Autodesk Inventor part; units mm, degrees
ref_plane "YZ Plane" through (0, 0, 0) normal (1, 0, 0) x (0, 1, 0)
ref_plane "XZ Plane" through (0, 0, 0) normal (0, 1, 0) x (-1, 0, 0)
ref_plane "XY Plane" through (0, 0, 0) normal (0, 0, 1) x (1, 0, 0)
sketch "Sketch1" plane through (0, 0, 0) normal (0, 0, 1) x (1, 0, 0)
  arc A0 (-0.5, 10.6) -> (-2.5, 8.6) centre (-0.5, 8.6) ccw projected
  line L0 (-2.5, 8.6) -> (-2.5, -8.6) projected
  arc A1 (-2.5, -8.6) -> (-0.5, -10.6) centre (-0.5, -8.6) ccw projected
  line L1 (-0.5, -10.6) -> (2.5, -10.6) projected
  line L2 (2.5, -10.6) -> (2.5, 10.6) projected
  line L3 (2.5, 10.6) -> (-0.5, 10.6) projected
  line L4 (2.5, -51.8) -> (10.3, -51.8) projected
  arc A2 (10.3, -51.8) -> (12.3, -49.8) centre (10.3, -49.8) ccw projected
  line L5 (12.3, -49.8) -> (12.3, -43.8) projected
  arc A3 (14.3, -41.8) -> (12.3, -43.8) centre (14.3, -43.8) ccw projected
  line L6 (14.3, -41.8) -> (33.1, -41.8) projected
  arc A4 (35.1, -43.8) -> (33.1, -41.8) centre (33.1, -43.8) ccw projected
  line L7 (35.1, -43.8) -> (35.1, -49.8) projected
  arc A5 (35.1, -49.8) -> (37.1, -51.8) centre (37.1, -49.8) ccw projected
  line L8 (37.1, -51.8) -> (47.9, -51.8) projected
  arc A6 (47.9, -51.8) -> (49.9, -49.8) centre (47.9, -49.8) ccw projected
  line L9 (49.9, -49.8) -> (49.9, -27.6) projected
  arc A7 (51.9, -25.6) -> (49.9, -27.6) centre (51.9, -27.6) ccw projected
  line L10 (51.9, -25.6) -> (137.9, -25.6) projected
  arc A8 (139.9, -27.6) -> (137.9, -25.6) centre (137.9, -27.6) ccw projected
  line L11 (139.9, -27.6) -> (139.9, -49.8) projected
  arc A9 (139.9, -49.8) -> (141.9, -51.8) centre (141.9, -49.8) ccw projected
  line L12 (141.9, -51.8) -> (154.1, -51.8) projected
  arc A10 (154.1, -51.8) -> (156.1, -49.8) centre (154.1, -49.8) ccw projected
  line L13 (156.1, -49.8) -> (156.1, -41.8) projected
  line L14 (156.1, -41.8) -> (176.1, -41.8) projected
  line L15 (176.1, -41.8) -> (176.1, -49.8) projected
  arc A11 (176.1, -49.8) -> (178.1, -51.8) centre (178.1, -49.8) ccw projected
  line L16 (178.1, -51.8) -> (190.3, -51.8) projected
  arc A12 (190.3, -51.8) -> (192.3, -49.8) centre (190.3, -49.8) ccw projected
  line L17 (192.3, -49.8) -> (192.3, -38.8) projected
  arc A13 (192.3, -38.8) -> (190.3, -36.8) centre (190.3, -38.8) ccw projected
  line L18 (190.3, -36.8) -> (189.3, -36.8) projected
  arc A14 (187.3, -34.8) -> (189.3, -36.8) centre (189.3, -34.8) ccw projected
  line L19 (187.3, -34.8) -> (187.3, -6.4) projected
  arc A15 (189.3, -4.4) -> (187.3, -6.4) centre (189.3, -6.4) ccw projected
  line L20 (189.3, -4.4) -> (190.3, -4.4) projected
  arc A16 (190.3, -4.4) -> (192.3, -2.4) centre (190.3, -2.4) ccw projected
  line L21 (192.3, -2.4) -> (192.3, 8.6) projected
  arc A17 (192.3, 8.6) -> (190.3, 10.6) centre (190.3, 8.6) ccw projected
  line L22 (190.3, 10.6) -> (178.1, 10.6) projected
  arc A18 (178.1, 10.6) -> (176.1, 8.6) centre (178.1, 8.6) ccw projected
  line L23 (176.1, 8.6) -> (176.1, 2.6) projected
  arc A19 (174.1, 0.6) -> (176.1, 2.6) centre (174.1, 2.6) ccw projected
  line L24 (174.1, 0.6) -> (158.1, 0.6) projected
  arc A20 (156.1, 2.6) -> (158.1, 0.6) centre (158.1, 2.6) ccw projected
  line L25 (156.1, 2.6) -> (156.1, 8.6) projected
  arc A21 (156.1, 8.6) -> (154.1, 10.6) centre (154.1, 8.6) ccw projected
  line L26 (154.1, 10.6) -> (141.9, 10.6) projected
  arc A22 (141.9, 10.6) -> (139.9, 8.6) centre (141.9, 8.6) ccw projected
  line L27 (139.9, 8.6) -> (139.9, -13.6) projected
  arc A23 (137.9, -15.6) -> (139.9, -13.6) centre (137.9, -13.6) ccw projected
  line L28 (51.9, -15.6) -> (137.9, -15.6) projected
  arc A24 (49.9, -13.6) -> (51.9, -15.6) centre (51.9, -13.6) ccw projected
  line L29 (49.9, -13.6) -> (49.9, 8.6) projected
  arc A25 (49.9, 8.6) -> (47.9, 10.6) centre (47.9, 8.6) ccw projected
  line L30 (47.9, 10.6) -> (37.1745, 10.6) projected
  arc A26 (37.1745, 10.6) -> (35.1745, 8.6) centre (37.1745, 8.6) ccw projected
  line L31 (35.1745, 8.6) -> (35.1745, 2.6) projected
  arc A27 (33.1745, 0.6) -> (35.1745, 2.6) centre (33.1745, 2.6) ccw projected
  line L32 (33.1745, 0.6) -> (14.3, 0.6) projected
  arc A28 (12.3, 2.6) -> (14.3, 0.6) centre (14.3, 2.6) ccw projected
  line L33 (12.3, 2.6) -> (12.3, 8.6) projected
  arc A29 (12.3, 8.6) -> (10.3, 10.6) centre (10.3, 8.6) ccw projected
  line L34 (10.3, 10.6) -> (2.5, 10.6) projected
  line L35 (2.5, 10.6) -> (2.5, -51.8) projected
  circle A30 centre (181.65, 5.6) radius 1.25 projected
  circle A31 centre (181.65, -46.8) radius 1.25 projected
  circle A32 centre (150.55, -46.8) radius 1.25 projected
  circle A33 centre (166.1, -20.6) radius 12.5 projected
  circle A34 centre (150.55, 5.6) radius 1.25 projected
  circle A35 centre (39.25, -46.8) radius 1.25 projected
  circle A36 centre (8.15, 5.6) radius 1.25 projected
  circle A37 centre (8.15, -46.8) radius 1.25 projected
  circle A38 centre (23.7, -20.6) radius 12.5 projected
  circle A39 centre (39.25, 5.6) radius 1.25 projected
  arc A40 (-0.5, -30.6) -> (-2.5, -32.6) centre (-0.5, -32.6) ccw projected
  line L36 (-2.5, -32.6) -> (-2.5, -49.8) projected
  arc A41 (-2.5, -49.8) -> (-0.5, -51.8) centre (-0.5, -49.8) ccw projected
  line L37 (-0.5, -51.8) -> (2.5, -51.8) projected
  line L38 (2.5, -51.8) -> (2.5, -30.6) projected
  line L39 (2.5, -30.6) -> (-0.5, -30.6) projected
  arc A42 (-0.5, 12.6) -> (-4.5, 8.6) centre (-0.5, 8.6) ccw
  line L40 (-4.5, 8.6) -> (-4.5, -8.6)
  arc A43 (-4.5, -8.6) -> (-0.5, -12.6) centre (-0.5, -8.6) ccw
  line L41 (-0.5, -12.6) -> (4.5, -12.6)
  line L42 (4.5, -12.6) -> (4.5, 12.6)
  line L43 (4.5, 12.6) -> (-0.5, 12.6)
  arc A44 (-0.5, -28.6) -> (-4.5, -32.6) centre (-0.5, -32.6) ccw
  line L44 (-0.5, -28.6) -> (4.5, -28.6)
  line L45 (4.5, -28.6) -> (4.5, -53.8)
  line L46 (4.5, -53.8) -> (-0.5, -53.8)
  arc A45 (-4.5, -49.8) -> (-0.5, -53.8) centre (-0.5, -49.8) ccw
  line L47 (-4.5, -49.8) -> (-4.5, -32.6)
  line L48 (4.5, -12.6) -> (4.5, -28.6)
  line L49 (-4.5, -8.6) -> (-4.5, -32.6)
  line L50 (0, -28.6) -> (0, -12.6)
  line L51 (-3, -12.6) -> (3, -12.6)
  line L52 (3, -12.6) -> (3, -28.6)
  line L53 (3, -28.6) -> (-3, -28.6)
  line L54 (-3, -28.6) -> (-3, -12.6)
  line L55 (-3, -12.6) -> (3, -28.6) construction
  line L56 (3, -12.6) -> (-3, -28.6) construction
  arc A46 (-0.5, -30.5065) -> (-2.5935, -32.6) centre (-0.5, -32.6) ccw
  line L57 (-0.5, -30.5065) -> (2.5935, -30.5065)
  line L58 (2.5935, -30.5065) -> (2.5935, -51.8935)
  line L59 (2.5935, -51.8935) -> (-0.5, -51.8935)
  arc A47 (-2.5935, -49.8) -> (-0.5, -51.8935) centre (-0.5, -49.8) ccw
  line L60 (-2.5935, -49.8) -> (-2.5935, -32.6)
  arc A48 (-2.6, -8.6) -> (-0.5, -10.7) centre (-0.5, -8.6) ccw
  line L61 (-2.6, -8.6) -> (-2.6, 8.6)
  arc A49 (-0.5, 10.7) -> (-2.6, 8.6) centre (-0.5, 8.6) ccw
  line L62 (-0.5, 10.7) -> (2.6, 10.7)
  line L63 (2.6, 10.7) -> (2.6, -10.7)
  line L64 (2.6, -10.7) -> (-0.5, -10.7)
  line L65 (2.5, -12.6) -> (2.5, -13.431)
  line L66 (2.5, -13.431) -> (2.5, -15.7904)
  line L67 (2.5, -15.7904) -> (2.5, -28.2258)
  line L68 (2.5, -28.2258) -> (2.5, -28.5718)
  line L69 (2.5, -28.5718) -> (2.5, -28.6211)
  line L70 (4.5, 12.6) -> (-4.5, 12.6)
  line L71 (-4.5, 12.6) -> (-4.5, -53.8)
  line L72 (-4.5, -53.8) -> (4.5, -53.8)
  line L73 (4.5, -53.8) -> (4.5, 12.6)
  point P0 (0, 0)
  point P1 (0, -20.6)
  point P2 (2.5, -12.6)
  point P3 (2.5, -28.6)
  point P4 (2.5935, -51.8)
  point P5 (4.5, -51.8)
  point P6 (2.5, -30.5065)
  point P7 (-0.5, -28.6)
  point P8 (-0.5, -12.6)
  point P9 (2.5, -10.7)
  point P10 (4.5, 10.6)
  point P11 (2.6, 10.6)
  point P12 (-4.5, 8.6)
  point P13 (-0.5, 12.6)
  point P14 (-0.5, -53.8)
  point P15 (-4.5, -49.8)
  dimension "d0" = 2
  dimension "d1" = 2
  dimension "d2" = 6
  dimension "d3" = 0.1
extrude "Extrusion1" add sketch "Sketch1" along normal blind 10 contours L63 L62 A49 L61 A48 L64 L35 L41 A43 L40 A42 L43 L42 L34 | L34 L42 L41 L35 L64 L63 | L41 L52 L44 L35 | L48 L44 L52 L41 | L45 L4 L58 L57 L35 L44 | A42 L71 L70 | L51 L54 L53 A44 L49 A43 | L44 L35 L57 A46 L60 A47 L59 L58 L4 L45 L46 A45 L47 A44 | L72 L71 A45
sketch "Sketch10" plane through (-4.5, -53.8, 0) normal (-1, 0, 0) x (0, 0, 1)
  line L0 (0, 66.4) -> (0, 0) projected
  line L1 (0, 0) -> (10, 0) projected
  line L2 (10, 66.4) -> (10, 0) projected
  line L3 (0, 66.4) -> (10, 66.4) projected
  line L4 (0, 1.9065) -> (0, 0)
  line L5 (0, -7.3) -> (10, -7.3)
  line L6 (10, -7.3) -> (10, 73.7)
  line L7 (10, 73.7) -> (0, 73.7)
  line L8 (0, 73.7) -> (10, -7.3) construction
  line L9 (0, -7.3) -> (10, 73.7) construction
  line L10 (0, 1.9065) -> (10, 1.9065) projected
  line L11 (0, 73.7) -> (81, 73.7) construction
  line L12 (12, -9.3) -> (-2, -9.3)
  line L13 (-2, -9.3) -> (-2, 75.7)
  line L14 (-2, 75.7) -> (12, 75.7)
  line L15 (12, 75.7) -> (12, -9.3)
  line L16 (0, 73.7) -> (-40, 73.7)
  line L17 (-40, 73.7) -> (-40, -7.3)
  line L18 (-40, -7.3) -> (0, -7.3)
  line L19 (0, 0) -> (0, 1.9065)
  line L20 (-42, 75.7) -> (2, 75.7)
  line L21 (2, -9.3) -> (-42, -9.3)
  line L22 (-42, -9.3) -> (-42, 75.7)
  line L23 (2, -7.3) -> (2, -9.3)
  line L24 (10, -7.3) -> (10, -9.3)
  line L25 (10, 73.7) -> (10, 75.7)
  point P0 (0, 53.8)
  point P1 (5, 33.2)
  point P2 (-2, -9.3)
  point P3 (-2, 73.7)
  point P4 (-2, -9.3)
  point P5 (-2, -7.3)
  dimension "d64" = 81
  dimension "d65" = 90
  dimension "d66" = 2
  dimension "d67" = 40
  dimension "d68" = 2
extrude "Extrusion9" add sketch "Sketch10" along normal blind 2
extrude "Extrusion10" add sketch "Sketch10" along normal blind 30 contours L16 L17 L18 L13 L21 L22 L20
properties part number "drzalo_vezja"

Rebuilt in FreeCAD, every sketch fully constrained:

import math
import FreeCAD as App
import Part
import Sketcher

V = App.Vector
Q = App.Units.Quantity


def add_polygon(sketch, points):
    """Adds a closed chain of lines whose ends are joined by coincident constraints."""
    first, n = sketch.GeometryCount, len(points)
    for a, b in zip(points, points[1:] + points[:1]):
        sketch.addGeometry(Part.LineSegment(App.Vector(*a, 0), App.Vector(*b, 0)), False)
    for i in range(n):
        sketch.addConstraint(Sketcher.Constraint("Coincident", first + i, 2, first + (i + 1) % n, 1))

doc = App.newDocument("Part")
body = doc.addObject("PartDesign::Body", "Body")

# Sketch on XY plane
sketch1 = body.newObject("Sketcher::SketchObject", "Sketch")
sketch1.AttachmentSupport = (doc.getObject("XY_Plane"), [""])
sketch1.MapMode = "FlatFace"
add_polygon(sketch1, [(-4.5, -53.8), (4.5, -53.8), (4.5, 12.6), (-4.5, 12.6)])  # lines 0-3
sketch1.addGeometry(Part.LineSegment(V(2.6, 10.7, 0), V(2.6, -10.7, 0)), False)  # 4
sketch1.addGeometry(Part.LineSegment(V(2.6, -10.7, 0), V(-0.5, -10.7, 0)), False)  # 5
sketch1.addGeometry(Part.ArcOfCircle(Part.Circle(V(-0.5, -8.6, 0), V(0, 0, 1), 2.1), math.radians(180), math.radians(270)), False)  # 6
sketch1.addGeometry(Part.LineSegment(V(-2.6, -8.6, 0), V(-2.6, 8.6, 0)), False)  # 7
sketch1.addGeometry(Part.ArcOfCircle(Part.Circle(V(-0.5, 8.6, 0), V(0, 0, 1), 2.1), math.radians(90), math.radians(180)), False)  # 8
sketch1.addGeometry(Part.LineSegment(V(-0.5, 10.7, 0), V(2.6, 10.7, 0)), False)  # 9
add_polygon(sketch1, [(2.5, -12.6), (2.5, -28.6), (-3, -28.6), (-3, -12.6)])  # lines 10-13
sketch1.addGeometry(Part.LineSegment(V(-0.5, -30.5065, 0), V(2.5935, -30.5065, 0)), False)  # 14
sketch1.addGeometry(Part.LineSegment(V(2.5935, -30.5065, 0), V(2.5935, -51.8935, 0)), False)  # 15
sketch1.addGeometry(Part.LineSegment(V(2.5935, -51.8935, 0), V(-0.5, -51.8935, 0)), False)  # 16
sketch1.addGeometry(Part.ArcOfCircle(Part.Circle(V(-0.5, -49.8, 0), V(0, 0, 1), 2.0935), math.radians(180), math.radians(270)), False)  # 17
sketch1.addGeometry(Part.LineSegment(V(-2.5935, -49.8, 0), V(-2.5935, -32.6, 0)), False)  # 18
sketch1.addGeometry(Part.ArcOfCircle(Part.Circle(V(-0.5, -32.6, 0), V(0, 0, 1), 2.0935), math.radians(90), math.radians(180)), False)  # 19
sketch1.addConstraint(Sketcher.Constraint("Coincident", 4, 2, 5, 1))
sketch1.addConstraint(Sketcher.Constraint("Tangent", 5, 2, 6, 2))
sketch1.addConstraint(Sketcher.Constraint("Tangent", 6, 1, 7, 1))
sketch1.addConstraint(Sketcher.Constraint("Tangent", 7, 2, 8, 2))
sketch1.addConstraint(Sketcher.Constraint("Tangent", 8, 1, 9, 1))
sketch1.addConstraint(Sketcher.Constraint("Coincident", 9, 2, 4, 1))
sketch1.addConstraint(Sketcher.Constraint("Coincident", 14, 2, 15, 1))
sketch1.addConstraint(Sketcher.Constraint("Coincident", 15, 2, 16, 1))
sketch1.addConstraint(Sketcher.Constraint("Tangent", 16, 2, 17, 2))
sketch1.addConstraint(Sketcher.Constraint("Tangent", 17, 1, 18, 1))
sketch1.addConstraint(Sketcher.Constraint("Tangent", 18, 2, 19, 2))
sketch1.addConstraint(Sketcher.Constraint("Tangent", 19, 1, 14, 1))
sketch1.addConstraint(Sketcher.Constraint("Horizontal", 0))
sketch1.addConstraint(Sketcher.Constraint("Vertical", 1))
sketch1.addConstraint(Sketcher.Constraint("Horizontal", 2))
sketch1.addConstraint(Sketcher.Constraint("Vertical", 3))
sketch1.addConstraint(Sketcher.Constraint("Vertical", 4))
sketch1.addConstraint(Sketcher.Constraint("Horizontal", 5))
sketch1.addConstraint(Sketcher.Constraint("Vertical", 7))
sketch1.addConstraint(Sketcher.Constraint("Horizontal", 9))
sketch1.addConstraint(Sketcher.Constraint("Vertical", 10))
sketch1.addConstraint(Sketcher.Constraint("Horizontal", 11))
sketch1.addConstraint(Sketcher.Constraint("Vertical", 12))
sketch1.addConstraint(Sketcher.Constraint("Horizontal", 13))
sketch1.addConstraint(Sketcher.Constraint("Horizontal", 14))
sketch1.addConstraint(Sketcher.Constraint("Vertical", 15))
sketch1.addConstraint(Sketcher.Constraint("Horizontal", 16))
sketch1.addConstraint(Sketcher.Constraint("Vertical", 18))
sketch1.addConstraint(Sketcher.Constraint("Equal", 6, 8))
sketch1.addConstraint(Sketcher.Constraint("Equal", 17, 19))
sketch1.addConstraint(Sketcher.Constraint("Vertical", 8, 3, 17, 3))
sketch1.addConstraint(Sketcher.Constraint("Equal", 7, 18))
sketch1.addConstraint(Sketcher.Constraint("Radius", 6, Q("2.1 mm")))
sketch1.addConstraint(Sketcher.Constraint("DistanceX", 10, 2, 4, 2, Q("0.1 mm")))
sketch1.addConstraint(Sketcher.Constraint("DistanceX", 0, 1, 0, 2, Q("9 mm")))
sketch1.addConstraint(Sketcher.Constraint("DistanceY", 10, 2, 10, 1, Q("16 mm")))
sketch1.addConstraint(Sketcher.Constraint("DistanceX", 5, 2, 5, 1, Q("3.1 mm")))
sketch1.addConstraint(Sketcher.Constraint("DistanceX", 11, 2, 11, 1, Q("5.5 mm")))
sketch1.addConstraint(Sketcher.Constraint("DistanceY", 1, 1, 1, 2, Q("66.4 mm")))
sketch1.addConstraint(Sketcher.Constraint("DistanceY", 4, 2, 4, 1, Q("21.4 mm")))
sketch1.addConstraint(Sketcher.Constraint("DistanceX", 11, 2, -1, 1, Q("3 mm")))
sketch1.addConstraint(Sketcher.Constraint("DistanceY", 19, 3, 6, 3, Q("24 mm")))
sketch1.addConstraint(Sketcher.Constraint("DistanceX", 17, 3, 0, 2, Q("5 mm")))
sketch1.addConstraint(Sketcher.Constraint("DistanceY", 0, 2, 17, 3, Q("4 mm")))
sketch1.addConstraint(Sketcher.Constraint("DistanceY", 19, 3, 10, 2, Q("4 mm")))
sketch1.addConstraint(Sketcher.Constraint("DistanceY", 6, 3, -1, 1, Q("8.6 mm")))
sketch1.addConstraint(Sketcher.Constraint("Radius", 17, Q("2.0935 mm")))
sketch1.addConstraint(Sketcher.Constraint("DistanceX", 14, 1, 14, 2, Q("3.0935 mm")))
pad1 = body.newObject("PartDesign::Pad", "Pad")
pad1.Profile = sketch1
pad1.Length = 10

# Sketch on YZ plane
sketch2 = body.newObject("Sketcher::SketchObject", "Sketch001")
sketch2.AttachmentSupport = (doc.getObject("YZ_Plane"), [""])
sketch2.MapMode = "FlatFace"
sketch2.AttachmentOffset = App.Placement(V(0, 0, -4.5), App.Rotation())
add_polygon(sketch2, [(21.9, 12), (21.9, -42), (-63.1, -42), (-63.1, 12)])  # lines 0-3
sketch2.addConstraint(Sketcher.Constraint("Vertical", 0))
sketch2.addConstraint(Sketcher.Constraint("Horizontal", 1))
sketch2.addConstraint(Sketcher.Constraint("Vertical", 2))
sketch2.addConstraint(Sketcher.Constraint("Horizontal", 3))
sketch2.addConstraint(Sketcher.Constraint("DistanceX", 1, 2, 1, 1, Q("85 mm")))
sketch2.addConstraint(Sketcher.Constraint("DistanceY", 0, 2, 0, 1, Q("54 mm")))
sketch2.addConstraint(Sketcher.Constraint("DistanceY", 0, 2, -1, 1, Q("42 mm")))
sketch2.addConstraint(Sketcher.Constraint("DistanceX", -1, 1, 0, 2, Q("21.9 mm")))
pad2 = body.newObject("PartDesign::Pad", "Pad001")
pad2.Profile = sketch2
pad2.Length = 2
pad2.Reversed = True

# Sketch on YZ plane
sketch3 = body.newObject("Sketcher::SketchObject", "Sketch002")
sketch3.AttachmentSupport = (doc.getObject("YZ_Plane"), [""])
sketch3.MapMode = "FlatFace"
sketch3.AttachmentOffset = App.Placement(V(0, 0, -4.5), App.Rotation())
add_polygon(sketch3, [(19.9, -40), (19.9, -2), (21.9, -2), (21.9, -42), (-63.1, -42), (-63.1, -2), (-61.1, -2), (-61.1, -40)])  # lines 0-7
sketch3.addConstraint(Sketcher.Constraint("Vertical", 0))
sketch3.addConstraint(Sketcher.Constraint("Horizontal", 1))
sketch3.addConstraint(Sketcher.Constraint("Vertical", 2))
sketch3.addConstraint(Sketcher.Constraint("Horizontal", 3))
sketch3.addConstraint(Sketcher.Constraint("Vertical", 4))
sketch3.addConstraint(Sketcher.Constraint("Horizontal", 5))
sketch3.addConstraint(Sketcher.Constraint("Vertical", 6))
sketch3.addConstraint(Sketcher.Constraint("Horizontal", 7))
sketch3.addConstraint(Sketcher.Constraint("Horizontal", 1, 2, 4, 2))
sketch3.addConstraint(Sketcher.Constraint("Equal", 1, 5))
sketch3.addConstraint(Sketcher.Constraint("DistanceX", 1, 1, 1, 2, Q("2 mm")))
sketch3.addConstraint(Sketcher.Constraint("DistanceX", 7, 1, 7, 2, Q("81 mm")))
sketch3.addConstraint(Sketcher.Constraint("DistanceY", 2, 2, 2, 1, Q("40 mm")))
sketch3.addConstraint(Sketcher.Constraint("DistanceY", 0, 2, -1, 1, Q("2 mm")))
sketch3.addConstraint(Sketcher.Constraint("DistanceY", 6, 2, -1, 1, Q("40 mm")))
sketch3.addConstraint(Sketcher.Constraint("DistanceX", -1, 1, 0, 2, Q("19.9 mm")))
pad3 = body.newObject("PartDesign::Pad", "Pad002")
pad3.Profile = sketch3
pad3.Length = 30
pad3.Reversed = True

doc.recompute()
